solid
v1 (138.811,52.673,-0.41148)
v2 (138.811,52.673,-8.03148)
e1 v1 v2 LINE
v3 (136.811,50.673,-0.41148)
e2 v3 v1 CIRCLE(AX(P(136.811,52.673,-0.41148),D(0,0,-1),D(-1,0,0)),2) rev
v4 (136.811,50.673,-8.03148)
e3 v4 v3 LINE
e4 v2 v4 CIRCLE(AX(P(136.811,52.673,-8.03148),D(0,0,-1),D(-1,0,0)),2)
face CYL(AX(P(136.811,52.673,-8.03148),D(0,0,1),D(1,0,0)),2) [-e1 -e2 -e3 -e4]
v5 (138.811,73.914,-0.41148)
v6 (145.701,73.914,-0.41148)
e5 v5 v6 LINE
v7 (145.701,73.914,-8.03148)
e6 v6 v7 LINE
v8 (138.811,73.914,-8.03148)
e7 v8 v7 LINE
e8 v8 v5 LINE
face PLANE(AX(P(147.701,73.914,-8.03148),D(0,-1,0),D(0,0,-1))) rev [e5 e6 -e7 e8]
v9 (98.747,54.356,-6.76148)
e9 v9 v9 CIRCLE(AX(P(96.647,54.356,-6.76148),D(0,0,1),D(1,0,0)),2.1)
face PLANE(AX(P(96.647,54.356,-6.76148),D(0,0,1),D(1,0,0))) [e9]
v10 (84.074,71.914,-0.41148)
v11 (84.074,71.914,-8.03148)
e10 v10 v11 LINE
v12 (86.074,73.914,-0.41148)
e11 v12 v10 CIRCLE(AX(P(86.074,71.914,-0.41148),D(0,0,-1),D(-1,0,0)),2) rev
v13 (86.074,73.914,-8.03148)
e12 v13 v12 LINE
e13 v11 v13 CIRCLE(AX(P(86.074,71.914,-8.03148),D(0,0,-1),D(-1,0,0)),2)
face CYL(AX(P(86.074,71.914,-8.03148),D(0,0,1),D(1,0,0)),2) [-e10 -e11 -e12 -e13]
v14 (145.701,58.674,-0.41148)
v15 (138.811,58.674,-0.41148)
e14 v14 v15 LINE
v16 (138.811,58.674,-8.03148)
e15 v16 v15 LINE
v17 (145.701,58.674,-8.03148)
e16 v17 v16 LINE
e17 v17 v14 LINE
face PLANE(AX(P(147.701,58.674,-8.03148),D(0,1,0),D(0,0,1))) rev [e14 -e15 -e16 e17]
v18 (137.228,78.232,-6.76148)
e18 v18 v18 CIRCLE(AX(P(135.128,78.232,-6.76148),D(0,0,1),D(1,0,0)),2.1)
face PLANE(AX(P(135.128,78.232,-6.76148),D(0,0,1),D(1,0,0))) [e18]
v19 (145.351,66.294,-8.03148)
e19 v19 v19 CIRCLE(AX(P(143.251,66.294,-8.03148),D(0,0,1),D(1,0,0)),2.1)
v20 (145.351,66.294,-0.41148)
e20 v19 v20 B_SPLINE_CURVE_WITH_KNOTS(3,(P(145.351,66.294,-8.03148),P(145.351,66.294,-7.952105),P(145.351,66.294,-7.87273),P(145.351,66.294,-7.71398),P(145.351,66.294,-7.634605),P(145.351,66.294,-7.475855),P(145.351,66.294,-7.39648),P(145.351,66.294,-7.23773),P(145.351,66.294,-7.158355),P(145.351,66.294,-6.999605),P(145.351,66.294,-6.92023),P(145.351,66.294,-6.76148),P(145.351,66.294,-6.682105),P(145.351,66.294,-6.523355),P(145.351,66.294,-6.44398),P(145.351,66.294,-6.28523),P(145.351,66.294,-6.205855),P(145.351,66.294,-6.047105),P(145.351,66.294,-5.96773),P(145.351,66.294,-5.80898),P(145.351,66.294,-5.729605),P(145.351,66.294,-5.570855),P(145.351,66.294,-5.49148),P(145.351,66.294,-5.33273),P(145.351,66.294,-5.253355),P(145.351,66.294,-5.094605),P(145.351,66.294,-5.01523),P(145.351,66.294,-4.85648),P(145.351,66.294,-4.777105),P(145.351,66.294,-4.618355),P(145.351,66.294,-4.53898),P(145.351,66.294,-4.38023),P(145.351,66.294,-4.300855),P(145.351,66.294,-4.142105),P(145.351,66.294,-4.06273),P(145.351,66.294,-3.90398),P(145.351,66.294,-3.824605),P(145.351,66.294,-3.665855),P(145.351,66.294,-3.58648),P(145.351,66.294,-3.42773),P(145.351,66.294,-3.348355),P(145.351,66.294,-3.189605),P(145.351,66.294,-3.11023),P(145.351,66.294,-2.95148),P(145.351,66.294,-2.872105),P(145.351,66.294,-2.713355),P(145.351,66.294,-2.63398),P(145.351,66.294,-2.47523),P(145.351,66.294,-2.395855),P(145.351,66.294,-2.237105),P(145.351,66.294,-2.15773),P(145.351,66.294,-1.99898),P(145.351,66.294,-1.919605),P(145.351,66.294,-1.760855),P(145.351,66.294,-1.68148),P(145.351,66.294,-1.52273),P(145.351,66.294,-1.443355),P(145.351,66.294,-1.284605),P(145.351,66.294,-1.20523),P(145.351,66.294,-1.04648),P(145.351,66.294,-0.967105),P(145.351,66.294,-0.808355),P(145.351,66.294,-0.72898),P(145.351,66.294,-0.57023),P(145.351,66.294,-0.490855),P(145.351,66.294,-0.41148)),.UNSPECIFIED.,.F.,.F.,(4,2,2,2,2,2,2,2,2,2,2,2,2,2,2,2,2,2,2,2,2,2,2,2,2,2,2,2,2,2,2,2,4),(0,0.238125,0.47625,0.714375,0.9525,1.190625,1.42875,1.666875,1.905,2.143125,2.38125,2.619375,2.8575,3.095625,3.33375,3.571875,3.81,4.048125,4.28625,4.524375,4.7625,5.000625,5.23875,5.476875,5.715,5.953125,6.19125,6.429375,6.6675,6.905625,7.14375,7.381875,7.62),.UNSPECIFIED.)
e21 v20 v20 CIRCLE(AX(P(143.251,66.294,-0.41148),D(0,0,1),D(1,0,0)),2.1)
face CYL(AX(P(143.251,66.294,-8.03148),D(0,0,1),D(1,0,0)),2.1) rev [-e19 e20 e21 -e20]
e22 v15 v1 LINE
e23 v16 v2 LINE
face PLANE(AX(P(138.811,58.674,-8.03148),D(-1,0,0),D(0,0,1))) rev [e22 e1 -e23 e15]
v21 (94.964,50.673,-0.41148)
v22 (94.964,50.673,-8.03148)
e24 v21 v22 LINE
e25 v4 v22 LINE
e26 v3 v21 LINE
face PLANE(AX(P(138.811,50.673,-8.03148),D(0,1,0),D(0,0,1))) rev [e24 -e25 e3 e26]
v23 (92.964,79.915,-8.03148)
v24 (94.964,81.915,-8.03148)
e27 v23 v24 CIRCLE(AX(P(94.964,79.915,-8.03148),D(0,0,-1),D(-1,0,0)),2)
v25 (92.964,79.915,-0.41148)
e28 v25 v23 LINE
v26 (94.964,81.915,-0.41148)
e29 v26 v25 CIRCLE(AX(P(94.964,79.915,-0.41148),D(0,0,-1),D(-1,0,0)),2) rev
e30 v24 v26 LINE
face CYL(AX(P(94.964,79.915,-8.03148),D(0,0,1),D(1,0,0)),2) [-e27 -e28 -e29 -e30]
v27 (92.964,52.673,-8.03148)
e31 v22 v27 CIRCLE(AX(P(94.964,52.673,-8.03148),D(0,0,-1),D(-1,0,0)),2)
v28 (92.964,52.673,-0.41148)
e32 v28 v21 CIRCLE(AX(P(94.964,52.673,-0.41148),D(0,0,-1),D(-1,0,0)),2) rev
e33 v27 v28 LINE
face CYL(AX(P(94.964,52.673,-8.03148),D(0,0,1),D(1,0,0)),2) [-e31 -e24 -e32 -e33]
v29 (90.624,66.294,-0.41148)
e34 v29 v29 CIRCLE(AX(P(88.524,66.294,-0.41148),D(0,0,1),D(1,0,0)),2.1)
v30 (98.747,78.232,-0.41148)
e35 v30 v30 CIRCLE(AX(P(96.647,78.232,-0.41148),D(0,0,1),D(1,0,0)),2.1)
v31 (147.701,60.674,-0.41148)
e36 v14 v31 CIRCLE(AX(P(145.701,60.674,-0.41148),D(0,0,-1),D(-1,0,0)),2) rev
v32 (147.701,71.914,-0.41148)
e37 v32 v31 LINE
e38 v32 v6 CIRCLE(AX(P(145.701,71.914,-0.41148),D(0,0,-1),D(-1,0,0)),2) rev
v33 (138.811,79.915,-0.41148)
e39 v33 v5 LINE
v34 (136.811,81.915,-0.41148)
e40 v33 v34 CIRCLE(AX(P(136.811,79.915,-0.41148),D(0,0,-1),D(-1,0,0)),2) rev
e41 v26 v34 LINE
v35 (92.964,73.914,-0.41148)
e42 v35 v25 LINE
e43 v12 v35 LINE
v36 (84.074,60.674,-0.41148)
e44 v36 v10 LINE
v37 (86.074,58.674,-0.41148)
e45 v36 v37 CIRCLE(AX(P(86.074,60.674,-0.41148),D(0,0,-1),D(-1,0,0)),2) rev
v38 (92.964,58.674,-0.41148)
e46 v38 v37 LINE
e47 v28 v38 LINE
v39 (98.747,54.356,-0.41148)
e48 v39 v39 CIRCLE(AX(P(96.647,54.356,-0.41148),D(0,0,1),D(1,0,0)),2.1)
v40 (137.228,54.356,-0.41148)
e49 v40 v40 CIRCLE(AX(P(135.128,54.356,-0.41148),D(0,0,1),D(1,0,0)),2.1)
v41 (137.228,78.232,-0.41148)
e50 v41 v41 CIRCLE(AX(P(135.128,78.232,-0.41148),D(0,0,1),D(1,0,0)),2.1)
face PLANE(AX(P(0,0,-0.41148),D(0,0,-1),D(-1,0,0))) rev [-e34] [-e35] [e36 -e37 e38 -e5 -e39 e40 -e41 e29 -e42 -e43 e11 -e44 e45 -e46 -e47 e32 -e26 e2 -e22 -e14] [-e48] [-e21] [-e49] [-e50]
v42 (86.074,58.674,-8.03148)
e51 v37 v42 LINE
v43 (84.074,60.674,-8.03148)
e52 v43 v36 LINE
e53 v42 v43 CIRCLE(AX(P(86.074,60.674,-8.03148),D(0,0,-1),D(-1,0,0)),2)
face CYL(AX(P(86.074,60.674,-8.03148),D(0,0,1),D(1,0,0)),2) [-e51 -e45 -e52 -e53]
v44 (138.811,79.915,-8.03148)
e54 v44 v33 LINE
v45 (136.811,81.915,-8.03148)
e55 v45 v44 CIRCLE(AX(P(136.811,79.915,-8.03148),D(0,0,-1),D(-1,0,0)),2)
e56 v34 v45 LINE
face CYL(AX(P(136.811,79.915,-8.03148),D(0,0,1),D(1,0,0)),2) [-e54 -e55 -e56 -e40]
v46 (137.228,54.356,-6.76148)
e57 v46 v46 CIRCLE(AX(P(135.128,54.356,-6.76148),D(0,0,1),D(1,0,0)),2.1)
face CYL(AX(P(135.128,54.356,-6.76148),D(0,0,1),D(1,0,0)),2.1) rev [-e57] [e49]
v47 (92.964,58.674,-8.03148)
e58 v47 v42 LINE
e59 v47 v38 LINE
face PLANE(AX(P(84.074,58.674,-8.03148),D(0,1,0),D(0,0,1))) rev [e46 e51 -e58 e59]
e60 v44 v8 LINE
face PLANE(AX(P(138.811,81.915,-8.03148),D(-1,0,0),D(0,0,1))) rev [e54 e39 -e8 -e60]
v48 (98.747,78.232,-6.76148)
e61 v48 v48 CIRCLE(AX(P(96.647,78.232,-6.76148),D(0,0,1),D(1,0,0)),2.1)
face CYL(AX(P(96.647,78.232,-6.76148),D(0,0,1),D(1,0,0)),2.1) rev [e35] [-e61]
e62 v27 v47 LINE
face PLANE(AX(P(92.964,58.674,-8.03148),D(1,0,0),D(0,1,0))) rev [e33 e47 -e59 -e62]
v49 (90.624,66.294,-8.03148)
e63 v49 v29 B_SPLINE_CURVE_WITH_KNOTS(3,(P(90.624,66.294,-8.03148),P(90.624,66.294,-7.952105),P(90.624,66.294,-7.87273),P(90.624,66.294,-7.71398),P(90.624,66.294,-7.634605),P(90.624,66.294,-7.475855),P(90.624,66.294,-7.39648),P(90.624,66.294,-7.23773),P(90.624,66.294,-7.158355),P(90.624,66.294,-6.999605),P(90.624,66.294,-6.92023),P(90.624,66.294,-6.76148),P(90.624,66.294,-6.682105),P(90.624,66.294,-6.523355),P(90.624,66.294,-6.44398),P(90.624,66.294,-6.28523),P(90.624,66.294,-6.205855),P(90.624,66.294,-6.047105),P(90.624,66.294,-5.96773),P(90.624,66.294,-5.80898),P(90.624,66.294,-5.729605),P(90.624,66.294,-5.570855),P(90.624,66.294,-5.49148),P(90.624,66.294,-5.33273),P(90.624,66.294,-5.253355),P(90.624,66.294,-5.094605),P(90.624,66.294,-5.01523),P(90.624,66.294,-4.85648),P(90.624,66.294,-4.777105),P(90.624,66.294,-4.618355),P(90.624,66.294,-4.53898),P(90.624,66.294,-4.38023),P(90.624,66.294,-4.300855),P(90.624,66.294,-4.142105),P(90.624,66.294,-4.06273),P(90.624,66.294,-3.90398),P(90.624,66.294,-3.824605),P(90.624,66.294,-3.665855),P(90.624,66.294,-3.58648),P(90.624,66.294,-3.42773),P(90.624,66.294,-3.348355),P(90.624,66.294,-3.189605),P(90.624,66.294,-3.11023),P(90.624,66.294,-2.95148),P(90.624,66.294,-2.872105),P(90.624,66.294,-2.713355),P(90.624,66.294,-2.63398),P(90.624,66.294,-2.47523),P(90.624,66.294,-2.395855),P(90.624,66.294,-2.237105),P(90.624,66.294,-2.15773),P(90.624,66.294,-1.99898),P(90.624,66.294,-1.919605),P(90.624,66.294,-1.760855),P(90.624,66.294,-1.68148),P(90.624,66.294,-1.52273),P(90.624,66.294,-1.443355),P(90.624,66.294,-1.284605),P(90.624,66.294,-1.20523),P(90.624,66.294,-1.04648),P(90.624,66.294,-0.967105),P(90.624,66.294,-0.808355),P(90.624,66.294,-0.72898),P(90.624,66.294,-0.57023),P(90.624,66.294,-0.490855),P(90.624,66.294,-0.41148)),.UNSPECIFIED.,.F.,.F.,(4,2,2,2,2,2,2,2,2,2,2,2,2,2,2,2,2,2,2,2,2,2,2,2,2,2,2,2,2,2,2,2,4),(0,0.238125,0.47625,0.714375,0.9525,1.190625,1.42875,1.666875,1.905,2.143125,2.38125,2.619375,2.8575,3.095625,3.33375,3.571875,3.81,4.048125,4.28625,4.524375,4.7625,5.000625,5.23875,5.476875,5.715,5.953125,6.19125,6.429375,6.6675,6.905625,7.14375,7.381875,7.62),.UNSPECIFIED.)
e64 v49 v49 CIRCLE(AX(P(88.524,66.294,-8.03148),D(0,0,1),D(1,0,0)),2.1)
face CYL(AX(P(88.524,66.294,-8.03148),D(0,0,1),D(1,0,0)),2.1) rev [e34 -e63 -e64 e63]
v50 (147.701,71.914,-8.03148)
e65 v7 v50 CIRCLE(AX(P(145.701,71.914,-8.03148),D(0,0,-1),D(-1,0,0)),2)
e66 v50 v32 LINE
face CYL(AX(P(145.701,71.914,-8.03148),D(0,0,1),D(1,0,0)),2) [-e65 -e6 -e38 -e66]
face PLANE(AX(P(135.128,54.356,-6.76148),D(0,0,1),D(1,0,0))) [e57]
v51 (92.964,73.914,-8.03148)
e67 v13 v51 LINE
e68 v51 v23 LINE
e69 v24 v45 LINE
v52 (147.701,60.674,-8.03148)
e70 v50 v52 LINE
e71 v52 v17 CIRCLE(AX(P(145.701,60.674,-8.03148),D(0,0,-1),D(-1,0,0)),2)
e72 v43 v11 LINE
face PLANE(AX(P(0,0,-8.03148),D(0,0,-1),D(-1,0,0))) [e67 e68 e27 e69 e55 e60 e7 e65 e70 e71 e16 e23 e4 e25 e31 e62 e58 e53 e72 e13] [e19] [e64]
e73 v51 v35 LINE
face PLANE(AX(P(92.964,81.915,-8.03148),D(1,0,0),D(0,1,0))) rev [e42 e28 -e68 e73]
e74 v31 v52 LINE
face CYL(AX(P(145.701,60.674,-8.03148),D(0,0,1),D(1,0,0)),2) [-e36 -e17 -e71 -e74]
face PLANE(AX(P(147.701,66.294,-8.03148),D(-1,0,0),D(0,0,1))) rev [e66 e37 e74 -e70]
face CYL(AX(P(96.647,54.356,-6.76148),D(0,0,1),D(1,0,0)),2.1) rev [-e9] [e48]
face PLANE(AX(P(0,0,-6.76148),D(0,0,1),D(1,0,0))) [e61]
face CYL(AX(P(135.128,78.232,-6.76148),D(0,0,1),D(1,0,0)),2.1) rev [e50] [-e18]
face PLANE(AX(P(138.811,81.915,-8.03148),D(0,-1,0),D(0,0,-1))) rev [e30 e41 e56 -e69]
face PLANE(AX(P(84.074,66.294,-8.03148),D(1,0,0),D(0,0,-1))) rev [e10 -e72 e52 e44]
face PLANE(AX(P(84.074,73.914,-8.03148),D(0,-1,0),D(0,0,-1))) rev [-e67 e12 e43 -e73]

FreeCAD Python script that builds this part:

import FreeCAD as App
import Part
import Sketcher
from FreeCAD import Vector
Q = App.Units.Quantity


def edges_at(feature, points):
    """Names of the edges that pass closest to the given points."""
    edges = feature.Shape.Edges
    near = lambda p: min(range(len(edges)), key=lambda i: edges[i].distToShape(Part.Vertex(*p))[0])
    return sorted({f"Edge{near(p) + 1}" for p in points})

doc = App.newDocument("Part")
params = doc.addObject("Spreadsheet::Sheet", "Params")
for row, (alias, value) in enumerate([
    ("sketch1_height", "0.6 in"),
    ("sketch1_width", "0.35 in"),
    ("sketch1_width2", "1.805 in"),
    ("sketch1_height2", "0.315 in"),
    ("pad1_length", "0.3 in"),
    ("pocket2_length", "0.25 in"),
    ("fillet_radius", "2 mm"),
], start=1):
    params.set(f"A{row}", alias)
    params.set(f"B{row}", "=" + value)
    params.setAlias(f"B{row}", alias)

body = doc.addObject("PartDesign::Body", "Body")

sketch1 = body.newObject("Sketcher::SketchObject", "Sketch")
sketch1.AttachmentSupport = (doc.getObject("XY_Plane"), [""])
sketch1.MapMode = "FlatFace"
sketch1.AttachmentOffset = App.Placement(Vector(0, 0, -0.0162 * 25.4), App.Rotation())
sketch1.addGeometry(Part.LineSegment(Vector(93, 51, 0), Vector(93, 59, 0)), False)
sketch1.addGeometry(Part.LineSegment(Vector(93, 59, 0), Vector(84, 59, 0)), False)
sketch1.addGeometry(Part.LineSegment(Vector(84, 59, 0), Vector(84, 74, 0)), False)
sketch1.addGeometry(Part.LineSegment(Vector(84, 74, 0), Vector(93, 74, 0)), False)
sketch1.addGeometry(Part.LineSegment(Vector(93, 74, 0), Vector(93, 82, 0)), False)
sketch1.addGeometry(Part.LineSegment(Vector(93, 82, 0), Vector(139, 82, 0)), False)
sketch1.addGeometry(Part.LineSegment(Vector(139, 82, 0), Vector(139, 74, 0)), False)
sketch1.addGeometry(Part.LineSegment(Vector(139, 74, 0), Vector(148, 74, 0)), False)
sketch1.addGeometry(Part.LineSegment(Vector(148, 74, 0), Vector(148, 59, 0)), False)
sketch1.addGeometry(Part.LineSegment(Vector(148, 59, 0), Vector(139, 59, 0)), False)
sketch1.addGeometry(Part.LineSegment(Vector(139, 59, 0), Vector(139, 51, 0)), False)
sketch1.addGeometry(Part.LineSegment(Vector(139, 51, 0), Vector(93, 51, 0)), False)
sketch1.addConstraint(Sketcher.Constraint("Coincident", 0, 2, 1, 1))
sketch1.addConstraint(Sketcher.Constraint("Coincident", 1, 2, 2, 1))
sketch1.addConstraint(Sketcher.Constraint("Coincident", 2, 2, 3, 1))
sketch1.addConstraint(Sketcher.Constraint("Coincident", 3, 2, 4, 1))
sketch1.addConstraint(Sketcher.Constraint("Coincident", 4, 2, 5, 1))
sketch1.addConstraint(Sketcher.Constraint("Coincident", 5, 2, 6, 1))
sketch1.addConstraint(Sketcher.Constraint("Coincident", 6, 2, 7, 1))
sketch1.addConstraint(Sketcher.Constraint("Coincident", 7, 2, 8, 1))
sketch1.addConstraint(Sketcher.Constraint("Coincident", 8, 2, 9, 1))
sketch1.addConstraint(Sketcher.Constraint("Coincident", 9, 2, 10, 1))
sketch1.addConstraint(Sketcher.Constraint("Coincident", 10, 2, 11, 1))
sketch1.addConstraint(Sketcher.Constraint("Coincident", 11, 2, 0, 1))
sketch1.addConstraint(Sketcher.Constraint("Vertical", 0))
sketch1.addConstraint(Sketcher.Constraint("Horizontal", 1))
sketch1.addConstraint(Sketcher.Constraint("Vertical", 2))
sketch1.addConstraint(Sketcher.Constraint("Horizontal", 3))
sketch1.addConstraint(Sketcher.Constraint("Vertical", 4))
sketch1.addConstraint(Sketcher.Constraint("Horizontal", 5))
sketch1.addConstraint(Sketcher.Constraint("Vertical", 6))
sketch1.addConstraint(Sketcher.Constraint("Horizontal", 7))
sketch1.addConstraint(Sketcher.Constraint("Vertical", 8))
sketch1.addConstraint(Sketcher.Constraint("Horizontal", 9))
sketch1.addConstraint(Sketcher.Constraint("Vertical", 10))
sketch1.addConstraint(Sketcher.Constraint("Horizontal", 11))
sketch1.addConstraint(Sketcher.Constraint("Horizontal", 3, 2, 6, 2))
sketch1.addConstraint(Sketcher.Constraint("Horizontal", 1, 2, 8, 2))
sketch1.addConstraint(Sketcher.Constraint("Vertical", 0, 2, 3, 2))
sketch1.addConstraint(Sketcher.Constraint("Vertical", 6, 2, 9, 2))
sketch1.addConstraint(Sketcher.Constraint("Equal", 3, 7))
sketch1.addConstraint(Sketcher.Constraint("Equal", 0, 4))
sketch1.addConstraint(Sketcher.Constraint("DistanceY", 2, 1, 2, 2, Q("0.6 in")))
sketch1.addConstraint(Sketcher.Constraint("DistanceX", 1, 2, 1, 1, Q("0.35 in")))
sketch1.addConstraint(Sketcher.Constraint("DistanceX", 5, 1, 5, 2, Q("1.805 in")))
sketch1.addConstraint(Sketcher.Constraint("DistanceY", 0, 1, 0, 2, Q("0.315 in")))
sketch1.addConstraint(Sketcher.Constraint("DistanceX", -1, 1, 0, 2, Q("3.66 in")))
sketch1.addConstraint(Sketcher.Constraint("DistanceY", -1, 1, 0, 2, Q("2.31 in")))
sketch1.setExpression("Constraints[30]", "Params.sketch1_height")
sketch1.setExpression("Constraints[31]", "Params.sketch1_width")
sketch1.setExpression("Constraints[32]", "Params.sketch1_width2")
sketch1.setExpression("Constraints[33]", "Params.sketch1_height2")
pad1 = body.newObject("PartDesign::Pad", "Pad")
pad1.Profile = sketch1
pad1.setExpression("Length", "Params.pad1_length")
pad1.Reversed = True

sketch2 = body.newObject("Sketcher::SketchObject", "Sketch001")
sketch2.AttachmentSupport = (doc.getObject("XY_Plane"), [""])
sketch2.MapMode = "FlatFace"
sketch2.AttachmentOffset = App.Placement(Vector(0, 0, -0.0162 * 25.4), App.Rotation())
sketch2.addGeometry(Part.Circle(Vector(88.5, 66.3, 0), Vector(0, 0, 1), 2.1), False)
sketch2.addGeometry(Part.Circle(Vector(143.3, 66.3, 0), Vector(0, 0, 1), 2.1), False)
sketch2.addConstraint(Sketcher.Constraint("Equal", 0, 1))
sketch2.addConstraint(Sketcher.Constraint("Horizontal", 0, 3, 1, 3))
sketch2.addConstraint(Sketcher.Constraint("Diameter", 0, Q("4.2 mm")))
sketch2.addConstraint(Sketcher.Constraint("DistanceY", -1, 1, 0, 3, Q("2.61 in")))
sketch2.addConstraint(Sketcher.Constraint("DistanceX", -1, 1, 0, 3, Q("88.524 mm")))
sketch2.addConstraint(Sketcher.Constraint("DistanceX", -1, 1, 1, 3, Q("143.251 mm")))
pocket1 = body.newObject("PartDesign::Pocket", "Pocket")
pocket1.Profile = sketch2
pocket1.Type = "ThroughAll"

sketch3 = body.newObject("Sketcher::SketchObject", "Sketch002")
sketch3.AttachmentSupport = (doc.getObject("XY_Plane"), [""])
sketch3.MapMode = "FlatFace"
sketch3.AttachmentOffset = App.Placement(Vector(0, 0, -0.0162 * 25.4), App.Rotation())
sketch3.addGeometry(Part.Circle(Vector(96.6, 78.2, 0), Vector(0, 0, 1), 2.1), False)
sketch3.addGeometry(Part.Circle(Vector(96.6, 54.4, 0), Vector(0, 0, 1), 2.1), False)
sketch3.addGeometry(Part.Circle(Vector(135.1, 54.4, 0), Vector(0, 0, 1), 2.1), False)
sketch3.addGeometry(Part.Circle(Vector(135.1, 78.2, 0), Vector(0, 0, 1), 2.1), False)
sketch3.addConstraint(Sketcher.Constraint("Equal", 0, 1))
sketch3.addConstraint(Sketcher.Constraint("Equal", 1, 2))
sketch3.addConstraint(Sketcher.Constraint("Equal", 2, 3))
sketch3.addConstraint(Sketcher.Constraint("Horizontal", 1, 3, 2, 3))
sketch3.addConstraint(Sketcher.Constraint("Horizontal", 0, 3, 3, 3))
sketch3.addConstraint(Sketcher.Constraint("Vertical", 0, 3, 1, 3))
sketch3.addConstraint(Sketcher.Constraint("Vertical", 2, 3, 3, 3))
sketch3.addConstraint(Sketcher.Constraint("Diameter", 0, Q("4.2 mm")))
sketch3.addConstraint(Sketcher.Constraint("DistanceY", -1, 1, 0, 3, Q("3.08 in")))
sketch3.addConstraint(Sketcher.Constraint("DistanceY", -1, 1, 1, 3, Q("2.14 in")))
sketch3.addConstraint(Sketcher.Constraint("DistanceX", -1, 1, 2, 3, Q("5.32 in")))
sketch3.addConstraint(Sketcher.Constraint("DistanceX", -1, 1, 0, 3, Q("3.805 in")))
pocket2 = body.newObject("PartDesign::Pocket", "Pocket001")
pocket2.Profile = sketch3
pocket2.setExpression("Length", "Params.pocket2_length")
doc.recompute()

fillet = body.newObject("PartDesign::Fillet", "Fillet")
fillet.Base = (pocket2, edges_at(pocket2, [
    (138.811, 81.915, -4.221),
    (92.964, 81.915, -4.221),
    (84.074, 73.914, -4.221),
    (84.074, 58.674, -4.221),
    (92.964, 50.673, -4.221),
    (138.811, 50.673, -4.221),
    (147.701, 58.674, -4.221),
    (147.701, 73.914, -4.221),
]))
fillet.setExpression("Radius", "Params.fillet_radius")

doc.recompute()
